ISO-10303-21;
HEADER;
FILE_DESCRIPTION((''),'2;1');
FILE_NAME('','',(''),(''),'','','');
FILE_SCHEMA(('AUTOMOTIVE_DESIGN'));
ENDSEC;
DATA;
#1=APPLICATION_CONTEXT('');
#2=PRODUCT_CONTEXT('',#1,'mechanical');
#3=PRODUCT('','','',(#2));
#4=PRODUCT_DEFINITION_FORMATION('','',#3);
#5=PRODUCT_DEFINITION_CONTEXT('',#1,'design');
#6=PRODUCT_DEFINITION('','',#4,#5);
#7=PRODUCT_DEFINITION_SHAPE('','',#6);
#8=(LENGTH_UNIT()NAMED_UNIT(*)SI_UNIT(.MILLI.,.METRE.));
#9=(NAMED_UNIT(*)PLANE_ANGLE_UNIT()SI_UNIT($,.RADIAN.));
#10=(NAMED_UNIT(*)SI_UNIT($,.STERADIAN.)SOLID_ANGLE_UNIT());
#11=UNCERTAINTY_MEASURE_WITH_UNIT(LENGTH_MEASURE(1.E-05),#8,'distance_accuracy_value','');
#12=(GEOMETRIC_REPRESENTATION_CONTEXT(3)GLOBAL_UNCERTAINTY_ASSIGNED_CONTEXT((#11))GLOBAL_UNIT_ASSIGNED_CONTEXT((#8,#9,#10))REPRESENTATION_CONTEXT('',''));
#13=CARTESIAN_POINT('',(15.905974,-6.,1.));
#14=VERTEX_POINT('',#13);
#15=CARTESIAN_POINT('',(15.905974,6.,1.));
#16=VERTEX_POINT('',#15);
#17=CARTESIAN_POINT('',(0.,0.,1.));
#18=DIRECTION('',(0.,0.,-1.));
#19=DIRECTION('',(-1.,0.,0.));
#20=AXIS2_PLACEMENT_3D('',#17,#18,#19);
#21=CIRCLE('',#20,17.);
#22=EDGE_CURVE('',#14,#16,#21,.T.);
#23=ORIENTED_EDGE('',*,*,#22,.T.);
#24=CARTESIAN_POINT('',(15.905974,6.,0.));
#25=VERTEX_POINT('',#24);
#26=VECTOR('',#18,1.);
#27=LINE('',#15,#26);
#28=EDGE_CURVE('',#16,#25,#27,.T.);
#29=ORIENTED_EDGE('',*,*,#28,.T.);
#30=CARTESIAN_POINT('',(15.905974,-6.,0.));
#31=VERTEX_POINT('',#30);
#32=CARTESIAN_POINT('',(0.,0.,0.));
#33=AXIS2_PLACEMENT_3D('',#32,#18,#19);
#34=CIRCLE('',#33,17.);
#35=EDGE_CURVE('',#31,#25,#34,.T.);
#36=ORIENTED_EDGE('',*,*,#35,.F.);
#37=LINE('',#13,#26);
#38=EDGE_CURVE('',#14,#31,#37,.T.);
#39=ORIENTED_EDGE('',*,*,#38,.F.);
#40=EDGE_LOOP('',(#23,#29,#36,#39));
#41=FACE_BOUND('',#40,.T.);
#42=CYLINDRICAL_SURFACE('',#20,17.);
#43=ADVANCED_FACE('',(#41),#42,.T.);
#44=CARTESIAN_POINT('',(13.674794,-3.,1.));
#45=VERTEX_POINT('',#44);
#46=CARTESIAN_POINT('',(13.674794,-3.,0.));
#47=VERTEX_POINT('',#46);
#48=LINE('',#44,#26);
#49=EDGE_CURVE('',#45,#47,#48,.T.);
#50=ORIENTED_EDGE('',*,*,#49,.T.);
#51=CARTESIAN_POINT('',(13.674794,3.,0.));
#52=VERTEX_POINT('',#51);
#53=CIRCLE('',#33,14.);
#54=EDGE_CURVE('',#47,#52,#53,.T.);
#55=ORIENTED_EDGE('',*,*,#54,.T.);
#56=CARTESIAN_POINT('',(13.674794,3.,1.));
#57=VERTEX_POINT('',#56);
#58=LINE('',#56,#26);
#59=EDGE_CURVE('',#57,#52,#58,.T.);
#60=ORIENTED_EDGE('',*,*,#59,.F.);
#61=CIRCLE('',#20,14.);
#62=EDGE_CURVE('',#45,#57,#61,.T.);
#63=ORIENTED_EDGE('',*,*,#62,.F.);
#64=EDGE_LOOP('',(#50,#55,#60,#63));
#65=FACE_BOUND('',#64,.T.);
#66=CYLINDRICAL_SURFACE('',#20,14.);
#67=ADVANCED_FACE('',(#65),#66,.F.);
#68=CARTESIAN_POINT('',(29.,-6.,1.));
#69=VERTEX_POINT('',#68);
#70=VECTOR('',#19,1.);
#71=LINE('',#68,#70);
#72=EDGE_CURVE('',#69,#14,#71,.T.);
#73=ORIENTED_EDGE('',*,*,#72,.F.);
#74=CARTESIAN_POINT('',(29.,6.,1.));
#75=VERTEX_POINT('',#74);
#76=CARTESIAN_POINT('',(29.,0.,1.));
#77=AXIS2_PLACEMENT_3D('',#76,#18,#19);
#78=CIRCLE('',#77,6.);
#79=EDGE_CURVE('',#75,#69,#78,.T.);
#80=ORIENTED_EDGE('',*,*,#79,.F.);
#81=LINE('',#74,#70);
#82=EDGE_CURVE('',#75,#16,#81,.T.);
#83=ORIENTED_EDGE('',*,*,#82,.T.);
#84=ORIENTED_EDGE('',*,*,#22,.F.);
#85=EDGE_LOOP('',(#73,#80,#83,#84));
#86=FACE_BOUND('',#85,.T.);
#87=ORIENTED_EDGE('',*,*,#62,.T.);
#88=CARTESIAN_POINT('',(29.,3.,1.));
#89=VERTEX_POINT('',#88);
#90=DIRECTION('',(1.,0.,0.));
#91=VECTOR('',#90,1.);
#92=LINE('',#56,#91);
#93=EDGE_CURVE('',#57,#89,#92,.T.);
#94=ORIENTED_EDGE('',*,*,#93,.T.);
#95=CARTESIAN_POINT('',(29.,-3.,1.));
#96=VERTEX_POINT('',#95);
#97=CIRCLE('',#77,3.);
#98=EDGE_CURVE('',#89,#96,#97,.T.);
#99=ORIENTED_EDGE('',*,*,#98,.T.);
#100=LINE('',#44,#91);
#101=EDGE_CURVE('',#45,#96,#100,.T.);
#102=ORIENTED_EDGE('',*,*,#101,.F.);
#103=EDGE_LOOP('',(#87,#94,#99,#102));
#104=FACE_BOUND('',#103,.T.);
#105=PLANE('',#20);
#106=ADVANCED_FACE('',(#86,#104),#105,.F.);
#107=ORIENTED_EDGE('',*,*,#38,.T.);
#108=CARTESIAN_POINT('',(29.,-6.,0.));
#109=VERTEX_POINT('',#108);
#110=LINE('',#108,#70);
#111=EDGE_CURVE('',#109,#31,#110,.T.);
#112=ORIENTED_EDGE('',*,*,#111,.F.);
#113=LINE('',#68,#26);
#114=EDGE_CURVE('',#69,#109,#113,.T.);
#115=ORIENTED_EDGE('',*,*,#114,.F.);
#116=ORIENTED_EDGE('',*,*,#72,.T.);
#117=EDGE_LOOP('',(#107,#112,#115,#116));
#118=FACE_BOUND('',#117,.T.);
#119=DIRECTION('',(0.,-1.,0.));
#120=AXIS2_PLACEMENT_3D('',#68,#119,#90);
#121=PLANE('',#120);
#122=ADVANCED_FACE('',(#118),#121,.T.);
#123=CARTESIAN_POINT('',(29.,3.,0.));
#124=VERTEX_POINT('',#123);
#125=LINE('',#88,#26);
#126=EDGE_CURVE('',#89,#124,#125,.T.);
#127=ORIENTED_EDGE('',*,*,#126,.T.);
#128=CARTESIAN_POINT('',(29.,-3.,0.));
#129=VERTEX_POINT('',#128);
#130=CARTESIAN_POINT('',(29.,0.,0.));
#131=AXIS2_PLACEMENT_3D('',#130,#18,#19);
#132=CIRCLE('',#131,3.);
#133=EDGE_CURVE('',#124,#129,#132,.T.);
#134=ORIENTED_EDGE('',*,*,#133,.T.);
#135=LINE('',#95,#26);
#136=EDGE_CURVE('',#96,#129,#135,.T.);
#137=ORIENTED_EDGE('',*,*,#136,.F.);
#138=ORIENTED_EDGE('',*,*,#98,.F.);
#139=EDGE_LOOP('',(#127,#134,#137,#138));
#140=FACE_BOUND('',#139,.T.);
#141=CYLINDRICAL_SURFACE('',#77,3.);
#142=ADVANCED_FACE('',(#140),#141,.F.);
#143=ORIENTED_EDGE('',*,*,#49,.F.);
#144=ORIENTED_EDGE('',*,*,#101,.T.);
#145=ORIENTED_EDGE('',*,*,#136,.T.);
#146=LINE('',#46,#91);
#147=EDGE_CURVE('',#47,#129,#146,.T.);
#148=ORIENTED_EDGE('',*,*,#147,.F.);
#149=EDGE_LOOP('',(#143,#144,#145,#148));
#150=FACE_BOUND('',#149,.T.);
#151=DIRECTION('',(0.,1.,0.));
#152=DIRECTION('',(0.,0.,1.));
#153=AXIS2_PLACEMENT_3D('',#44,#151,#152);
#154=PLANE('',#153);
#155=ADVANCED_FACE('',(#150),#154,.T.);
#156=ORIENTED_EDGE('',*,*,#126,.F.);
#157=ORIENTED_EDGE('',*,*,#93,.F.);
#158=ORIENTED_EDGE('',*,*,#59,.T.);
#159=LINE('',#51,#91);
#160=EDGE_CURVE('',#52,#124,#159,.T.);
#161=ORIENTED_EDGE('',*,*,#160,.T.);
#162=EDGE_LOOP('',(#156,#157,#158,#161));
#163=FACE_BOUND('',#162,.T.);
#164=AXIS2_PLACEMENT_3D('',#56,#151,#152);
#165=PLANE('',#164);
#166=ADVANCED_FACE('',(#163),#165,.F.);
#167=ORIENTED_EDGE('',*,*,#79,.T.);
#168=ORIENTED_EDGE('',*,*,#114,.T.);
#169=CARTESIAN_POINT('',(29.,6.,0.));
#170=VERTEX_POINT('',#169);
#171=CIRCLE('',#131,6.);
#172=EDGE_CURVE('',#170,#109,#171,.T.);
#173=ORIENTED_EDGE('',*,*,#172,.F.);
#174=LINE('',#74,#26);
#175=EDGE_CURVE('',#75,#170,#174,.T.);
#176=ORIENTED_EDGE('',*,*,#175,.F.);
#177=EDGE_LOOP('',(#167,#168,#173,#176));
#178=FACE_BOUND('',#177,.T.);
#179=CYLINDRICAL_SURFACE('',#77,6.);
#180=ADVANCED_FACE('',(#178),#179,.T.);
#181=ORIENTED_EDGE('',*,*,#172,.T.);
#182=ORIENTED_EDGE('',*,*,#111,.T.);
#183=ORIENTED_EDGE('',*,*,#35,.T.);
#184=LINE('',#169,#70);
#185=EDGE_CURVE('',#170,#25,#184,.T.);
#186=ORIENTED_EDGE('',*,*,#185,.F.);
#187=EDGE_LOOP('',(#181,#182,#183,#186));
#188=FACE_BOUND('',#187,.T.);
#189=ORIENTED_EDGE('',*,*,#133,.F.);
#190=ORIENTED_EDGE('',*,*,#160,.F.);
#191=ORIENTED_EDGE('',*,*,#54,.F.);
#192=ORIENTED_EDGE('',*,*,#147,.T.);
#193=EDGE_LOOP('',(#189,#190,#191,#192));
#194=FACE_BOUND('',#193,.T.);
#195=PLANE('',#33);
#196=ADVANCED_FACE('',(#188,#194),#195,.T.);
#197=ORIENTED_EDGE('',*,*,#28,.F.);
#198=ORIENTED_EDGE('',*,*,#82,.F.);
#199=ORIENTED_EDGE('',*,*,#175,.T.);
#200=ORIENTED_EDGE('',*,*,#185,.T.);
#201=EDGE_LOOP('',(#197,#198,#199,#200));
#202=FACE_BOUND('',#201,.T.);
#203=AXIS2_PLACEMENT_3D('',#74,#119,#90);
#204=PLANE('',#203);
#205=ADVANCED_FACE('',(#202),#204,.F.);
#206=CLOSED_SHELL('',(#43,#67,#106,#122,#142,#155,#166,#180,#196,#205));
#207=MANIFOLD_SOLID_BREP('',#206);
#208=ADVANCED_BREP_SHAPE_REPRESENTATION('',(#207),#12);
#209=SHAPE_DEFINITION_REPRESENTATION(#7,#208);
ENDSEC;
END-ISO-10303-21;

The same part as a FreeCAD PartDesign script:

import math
import FreeCAD as App
import Part
import Sketcher

doc = App.newDocument("Part")
body = doc.addObject("PartDesign::Body", "Body")

# Sketch on XY plane
sketch1 = body.newObject("Sketcher::SketchObject", "Sketch")
sketch1.AttachmentSupport = (doc.getObject("XY_Plane"), [""])
sketch1.MapMode = "FlatFace"
sketch1.addGeometry([
    Part.LineSegment(App.Vector(29, 6, 0), App.Vector(15.9, 6, 0)),  # 0
    Part.ArcOfCircle(Part.Circle(App.Vector(0, 0, 0), App.Vector(0, 0, 1), 17), math.radians(21), math.radians(339)),  # 1
    Part.LineSegment(App.Vector(15.9, -6, 0), App.Vector(29, -6, 0)),  # 2
    Part.ArcOfCircle(Part.Circle(App.Vector(29, 0, 0), App.Vector(0, 0, 1), 6), math.radians(-90), math.radians(90)),  # 3
    Part.ArcOfCircle(Part.Circle(App.Vector(0, 0, 0), App.Vector(0, 0, 1), 14), math.radians(12), math.radians(348)),  # 4
    Part.LineSegment(App.Vector(13.7, 3, 0), App.Vector(29, 3, 0)),  # 5
    Part.ArcOfCircle(Part.Circle(App.Vector(29, 0, 0), App.Vector(0, 0, 1), 3), math.radians(-90), math.radians(90)),  # 6
    Part.LineSegment(App.Vector(29, -3, 0), App.Vector(13.7, -3, 0)),  # 7
], False)
sketch1.addConstraint([
    Sketcher.Constraint("Coincident", 0, 2, 1, 1),
    Sketcher.Constraint("Coincident", 1, 2, 2, 1),
    Sketcher.Constraint("Tangent", 2, 2, 3, 1),
    Sketcher.Constraint("Tangent", 3, 2, 0, 1),
    Sketcher.Constraint("Coincident", 4, 1, 5, 1),
    Sketcher.Constraint("Tangent", 5, 2, 6, 2),
    Sketcher.Constraint("Tangent", 6, 1, 7, 1),
    Sketcher.Constraint("Coincident", 7, 2, 4, 2),
    Sketcher.Constraint("Horizontal", 0),
    Sketcher.Constraint("Horizontal", 2),
    Sketcher.Constraint("Horizontal", 5),
    Sketcher.Constraint("Horizontal", 7),
    Sketcher.Constraint("Coincident", 1, 3, -1, 1),
    Sketcher.Constraint("Coincident", 4, 3, -1, 1),
    Sketcher.Constraint("Coincident", 6, 3, 3, 3),
    Sketcher.Constraint("PointOnObject", 3, 3, -1),
    Sketcher.Constraint("Radius", 1, 17.0),
    Sketcher.Constraint("Radius", 3, 6.0),
    Sketcher.Constraint("Radius", 4, 14.0),
    Sketcher.Constraint("Radius", 6, 3.0),
    Sketcher.Constraint("DistanceX", -1, 1, 3, 3, 29.0),
])
pad1 = body.newObject("PartDesign::Pad", "Pad")
pad1.Profile = sketch1
pad1.Length = 1

doc.recompute()
